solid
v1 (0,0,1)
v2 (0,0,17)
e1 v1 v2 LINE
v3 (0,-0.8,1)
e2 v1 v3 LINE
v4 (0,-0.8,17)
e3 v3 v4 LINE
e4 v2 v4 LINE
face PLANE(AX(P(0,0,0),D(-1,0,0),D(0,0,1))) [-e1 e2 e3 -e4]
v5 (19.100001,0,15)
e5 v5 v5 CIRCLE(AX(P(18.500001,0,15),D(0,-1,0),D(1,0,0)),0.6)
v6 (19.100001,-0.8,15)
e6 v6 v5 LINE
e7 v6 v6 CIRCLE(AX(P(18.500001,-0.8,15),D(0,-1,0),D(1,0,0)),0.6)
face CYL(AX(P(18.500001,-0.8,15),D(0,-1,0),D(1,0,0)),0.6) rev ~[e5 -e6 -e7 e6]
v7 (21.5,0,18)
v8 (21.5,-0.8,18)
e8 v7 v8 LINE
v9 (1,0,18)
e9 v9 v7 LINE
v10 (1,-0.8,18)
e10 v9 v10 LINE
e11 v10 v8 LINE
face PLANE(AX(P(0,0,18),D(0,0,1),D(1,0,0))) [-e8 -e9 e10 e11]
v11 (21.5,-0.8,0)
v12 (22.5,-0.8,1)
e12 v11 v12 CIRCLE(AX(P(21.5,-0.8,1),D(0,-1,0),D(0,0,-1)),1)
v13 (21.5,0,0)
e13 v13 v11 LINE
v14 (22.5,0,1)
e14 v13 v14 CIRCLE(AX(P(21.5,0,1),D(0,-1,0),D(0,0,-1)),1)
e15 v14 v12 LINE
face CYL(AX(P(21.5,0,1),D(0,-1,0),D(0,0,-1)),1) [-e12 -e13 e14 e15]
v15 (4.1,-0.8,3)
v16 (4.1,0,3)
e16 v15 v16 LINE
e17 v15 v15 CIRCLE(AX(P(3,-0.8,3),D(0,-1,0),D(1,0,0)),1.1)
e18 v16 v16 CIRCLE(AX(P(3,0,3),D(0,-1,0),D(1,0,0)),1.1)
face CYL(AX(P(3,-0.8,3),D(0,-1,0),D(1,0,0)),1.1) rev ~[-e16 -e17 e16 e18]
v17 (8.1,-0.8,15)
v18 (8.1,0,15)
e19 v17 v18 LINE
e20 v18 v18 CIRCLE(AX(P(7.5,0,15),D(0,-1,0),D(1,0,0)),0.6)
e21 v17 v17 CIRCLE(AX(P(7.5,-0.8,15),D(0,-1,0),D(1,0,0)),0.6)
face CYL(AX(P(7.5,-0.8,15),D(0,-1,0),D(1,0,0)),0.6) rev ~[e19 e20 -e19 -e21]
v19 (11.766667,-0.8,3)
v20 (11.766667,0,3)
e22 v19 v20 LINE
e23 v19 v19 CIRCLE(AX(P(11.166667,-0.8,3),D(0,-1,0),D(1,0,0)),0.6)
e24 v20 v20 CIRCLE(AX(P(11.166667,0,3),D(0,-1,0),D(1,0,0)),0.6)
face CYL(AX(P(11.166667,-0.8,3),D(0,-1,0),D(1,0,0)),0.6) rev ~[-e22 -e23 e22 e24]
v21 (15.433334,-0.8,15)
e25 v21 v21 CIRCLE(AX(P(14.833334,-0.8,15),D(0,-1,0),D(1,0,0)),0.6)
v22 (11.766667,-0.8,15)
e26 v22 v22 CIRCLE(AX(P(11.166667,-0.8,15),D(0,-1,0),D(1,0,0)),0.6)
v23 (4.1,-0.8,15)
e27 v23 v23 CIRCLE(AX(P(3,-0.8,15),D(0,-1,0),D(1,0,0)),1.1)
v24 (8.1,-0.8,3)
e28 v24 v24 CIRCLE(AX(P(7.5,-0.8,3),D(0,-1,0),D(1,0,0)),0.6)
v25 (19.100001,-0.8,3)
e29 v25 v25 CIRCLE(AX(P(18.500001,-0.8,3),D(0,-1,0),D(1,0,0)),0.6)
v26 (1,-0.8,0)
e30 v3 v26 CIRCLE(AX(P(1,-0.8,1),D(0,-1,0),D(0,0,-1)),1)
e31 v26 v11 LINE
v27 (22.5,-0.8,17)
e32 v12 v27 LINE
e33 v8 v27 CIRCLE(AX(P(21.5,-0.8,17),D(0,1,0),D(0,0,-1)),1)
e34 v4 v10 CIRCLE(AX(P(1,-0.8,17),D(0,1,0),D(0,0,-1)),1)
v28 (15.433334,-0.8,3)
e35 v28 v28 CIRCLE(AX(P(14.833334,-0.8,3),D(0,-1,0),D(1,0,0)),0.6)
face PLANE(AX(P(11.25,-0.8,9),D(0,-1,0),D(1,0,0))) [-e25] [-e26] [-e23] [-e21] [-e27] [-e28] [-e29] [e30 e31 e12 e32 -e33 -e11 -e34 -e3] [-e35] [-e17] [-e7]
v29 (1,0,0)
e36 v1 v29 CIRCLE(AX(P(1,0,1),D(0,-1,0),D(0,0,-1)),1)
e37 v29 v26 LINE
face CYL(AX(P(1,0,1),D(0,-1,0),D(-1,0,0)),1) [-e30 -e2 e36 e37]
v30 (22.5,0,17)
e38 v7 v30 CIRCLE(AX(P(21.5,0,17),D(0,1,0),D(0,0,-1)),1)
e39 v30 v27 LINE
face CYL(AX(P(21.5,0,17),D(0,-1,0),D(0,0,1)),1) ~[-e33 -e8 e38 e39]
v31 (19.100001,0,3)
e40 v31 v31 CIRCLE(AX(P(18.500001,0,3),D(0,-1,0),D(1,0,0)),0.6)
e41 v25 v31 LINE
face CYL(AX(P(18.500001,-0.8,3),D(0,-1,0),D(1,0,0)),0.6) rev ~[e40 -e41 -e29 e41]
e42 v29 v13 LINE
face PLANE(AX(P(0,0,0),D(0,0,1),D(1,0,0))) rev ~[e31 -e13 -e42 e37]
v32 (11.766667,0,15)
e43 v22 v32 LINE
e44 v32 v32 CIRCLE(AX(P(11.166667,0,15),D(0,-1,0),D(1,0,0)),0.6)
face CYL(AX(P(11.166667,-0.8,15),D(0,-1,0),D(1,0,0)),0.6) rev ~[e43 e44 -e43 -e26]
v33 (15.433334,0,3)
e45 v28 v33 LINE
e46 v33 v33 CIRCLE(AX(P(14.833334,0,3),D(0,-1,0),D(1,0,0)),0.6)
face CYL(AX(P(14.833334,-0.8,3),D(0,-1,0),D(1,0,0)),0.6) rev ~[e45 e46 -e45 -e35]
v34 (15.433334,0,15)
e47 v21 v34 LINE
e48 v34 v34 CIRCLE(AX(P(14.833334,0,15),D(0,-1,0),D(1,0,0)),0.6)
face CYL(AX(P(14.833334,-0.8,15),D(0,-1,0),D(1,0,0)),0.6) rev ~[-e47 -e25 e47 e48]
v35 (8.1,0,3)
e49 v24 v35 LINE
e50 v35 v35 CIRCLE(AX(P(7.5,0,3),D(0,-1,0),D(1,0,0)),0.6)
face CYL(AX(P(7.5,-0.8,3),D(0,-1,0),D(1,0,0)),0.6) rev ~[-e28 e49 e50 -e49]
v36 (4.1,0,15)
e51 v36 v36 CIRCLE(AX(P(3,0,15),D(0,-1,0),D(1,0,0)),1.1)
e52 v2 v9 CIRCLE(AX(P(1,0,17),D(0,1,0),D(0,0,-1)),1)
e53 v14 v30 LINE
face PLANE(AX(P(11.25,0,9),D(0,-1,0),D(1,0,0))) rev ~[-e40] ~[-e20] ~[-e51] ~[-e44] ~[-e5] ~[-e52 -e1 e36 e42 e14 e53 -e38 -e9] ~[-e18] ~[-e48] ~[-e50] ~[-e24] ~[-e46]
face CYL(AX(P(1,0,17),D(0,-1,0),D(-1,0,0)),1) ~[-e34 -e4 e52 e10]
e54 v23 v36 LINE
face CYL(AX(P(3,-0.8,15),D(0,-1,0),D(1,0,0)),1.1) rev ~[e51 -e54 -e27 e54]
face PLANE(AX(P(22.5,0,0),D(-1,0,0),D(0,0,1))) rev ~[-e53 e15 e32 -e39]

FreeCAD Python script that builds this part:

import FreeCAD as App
import Part
import Sketcher

V = App.Vector
Q = App.Units.Quantity


def edges_at(feature, points):
    """Names of the edges that pass closest to the given points."""
    edges = feature.Shape.Edges
    near = lambda p: min(range(len(edges)), key=lambda i: edges[i].distToShape(Part.Vertex(*p))[0])
    return sorted({f"Edge{near(p) + 1}" for p in points})

doc = App.newDocument("Part")
body = doc.addObject("PartDesign::Body", "Body")

# Sketch on XZ plane
sketch1 = body.newObject("Sketcher::SketchObject", "Sketch")
sketch1.AttachmentSupport = (doc.getObject("XZ_Plane"), [""])
sketch1.MapMode = "FlatFace"
sketch1.addGeometry(Part.LineSegment(V(0, 18, 0), V(0, 0, 0)), False)
sketch1.addGeometry(Part.LineSegment(V(0, 0, 0), V(22.5, 0, 0)), False)
sketch1.addGeometry(Part.LineSegment(V(22.5, 0, 0), V(22.5, 18, 0)), False)
sketch1.addGeometry(Part.LineSegment(V(22.5, 18, 0), V(0, 18, 0)), False)
sketch1.addConstraint(Sketcher.Constraint("Coincident", 0, 2, 1, 1))
sketch1.addConstraint(Sketcher.Constraint("Coincident", 1, 2, 2, 1))
sketch1.addConstraint(Sketcher.Constraint("Coincident", 2, 2, 3, 1))
sketch1.addConstraint(Sketcher.Constraint("Coincident", 3, 2, 0, 1))
sketch1.addConstraint(Sketcher.Constraint("Vertical", 0))
sketch1.addConstraint(Sketcher.Constraint("Horizontal", 1))
sketch1.addConstraint(Sketcher.Constraint("Vertical", 2))
sketch1.addConstraint(Sketcher.Constraint("Horizontal", 3))
sketch1.addConstraint(Sketcher.Constraint("Coincident", 0, 2, -1, 1))
sketch1.addConstraint(Sketcher.Constraint("DistanceY", 0, 2, 0, 1, Q("18 mm")))
sketch1.addConstraint(Sketcher.Constraint("DistanceX", 1, 1, 1, 2, Q("22.5 mm")))
pad1 = body.newObject("PartDesign::Pad", "Pad")
pad1.Profile = sketch1
pad1.Length = 0.8

# Sketch on XZ plane
sketch2 = body.newObject("Sketcher::SketchObject", "Sketch001")
sketch2.AttachmentSupport = (doc.getObject("XZ_Plane"), [""])
sketch2.MapMode = "FlatFace"
sketch2.AttachmentOffset = App.Placement(V(0, 0, 0.8), App.Rotation())
sketch2.addGeometry(Part.Circle(V(3, 15, 0), V(0, 0, 1), 1.1), False)
sketch2.addGeometry(Part.Circle(V(3, 3, 0), V(0, 0, 1), 1.1), False)
sketch2.addConstraint(Sketcher.Constraint("Equal", 0, 1))
sketch2.addConstraint(Sketcher.Constraint("Vertical", 0, 3, 1, 3))
sketch2.addConstraint(Sketcher.Constraint("Diameter", 0, Q("2.2 mm")))
sketch2.addConstraint(Sketcher.Constraint("DistanceX", -1, 1, 0, 3, Q("3 mm")))
sketch2.addConstraint(Sketcher.Constraint("DistanceY", -1, 1, 0, 3, Q("15 mm")))
sketch2.addConstraint(Sketcher.Constraint("DistanceY", -1, 1, 1, 3, Q("3 mm")))
pocket1 = body.newObject("PartDesign::Pocket", "Pocket")
pocket1.Profile = sketch2
pocket1.Length = 5
doc.recompute()

fillet = body.newObject("PartDesign::Fillet", "Fillet")
fillet.Base = (pocket1, edges_at(pocket1, [
    (0, -0.4, 18),
    (22.5, -0.4, 18),
    (22.5, -0.4, 0),
    (0, -0.4, 0),
]))
fillet.Radius = 1

# Sketch on XZ plane
sketch3 = body.newObject("Sketcher::SketchObject", "Sketch002")
sketch3.AttachmentSupport = (doc.getObject("XZ_Plane"), [""])
sketch3.MapMode = "FlatFace"
sketch3.AttachmentOffset = App.Placement(V(0, 0, 0.8), App.Rotation())
sketch3.addGeometry(Part.Circle(V(7.5, 15, 0), V(0, 0, 1), 0.6), False)
sketch3.addGeometry(Part.Circle(V(7.5, 3, 0), V(0, 0, 1), 0.6), False)
sketch3.addConstraint(Sketcher.Constraint("Equal", 0, 1))
sketch3.addConstraint(Sketcher.Constraint("Vertical", 0, 3, 1, 3))
sketch3.addConstraint(Sketcher.Constraint("Diameter", 0, Q("1.2 mm")))
sketch3.addConstraint(Sketcher.Constraint("DistanceY", -1, 1, 0, 3, Q("15 mm")))
sketch3.addConstraint(Sketcher.Constraint("DistanceY", -1, 1, 1, 3, Q("3 mm")))
sketch3.addConstraint(Sketcher.Constraint("DistanceX", -1, 1, 0, 3, Q("7.5 mm")))
pocket2 = body.newObject("PartDesign::Pocket", "Pocket001")
pocket2.Profile = sketch3
pocket2.Length = 5
doc.recompute()

linearpattern = body.newObject("PartDesign::LinearPattern", "LinearPattern")
linearpattern.Originals = [pocket2]
linearpattern.Direction = (doc.getObject("X_Axis"), [""])
linearpattern.Mode = "offset"
linearpattern.Offset = 3.666667
linearpattern.Occurrences = 4
body.Tip = linearpattern

doc.recompute()
